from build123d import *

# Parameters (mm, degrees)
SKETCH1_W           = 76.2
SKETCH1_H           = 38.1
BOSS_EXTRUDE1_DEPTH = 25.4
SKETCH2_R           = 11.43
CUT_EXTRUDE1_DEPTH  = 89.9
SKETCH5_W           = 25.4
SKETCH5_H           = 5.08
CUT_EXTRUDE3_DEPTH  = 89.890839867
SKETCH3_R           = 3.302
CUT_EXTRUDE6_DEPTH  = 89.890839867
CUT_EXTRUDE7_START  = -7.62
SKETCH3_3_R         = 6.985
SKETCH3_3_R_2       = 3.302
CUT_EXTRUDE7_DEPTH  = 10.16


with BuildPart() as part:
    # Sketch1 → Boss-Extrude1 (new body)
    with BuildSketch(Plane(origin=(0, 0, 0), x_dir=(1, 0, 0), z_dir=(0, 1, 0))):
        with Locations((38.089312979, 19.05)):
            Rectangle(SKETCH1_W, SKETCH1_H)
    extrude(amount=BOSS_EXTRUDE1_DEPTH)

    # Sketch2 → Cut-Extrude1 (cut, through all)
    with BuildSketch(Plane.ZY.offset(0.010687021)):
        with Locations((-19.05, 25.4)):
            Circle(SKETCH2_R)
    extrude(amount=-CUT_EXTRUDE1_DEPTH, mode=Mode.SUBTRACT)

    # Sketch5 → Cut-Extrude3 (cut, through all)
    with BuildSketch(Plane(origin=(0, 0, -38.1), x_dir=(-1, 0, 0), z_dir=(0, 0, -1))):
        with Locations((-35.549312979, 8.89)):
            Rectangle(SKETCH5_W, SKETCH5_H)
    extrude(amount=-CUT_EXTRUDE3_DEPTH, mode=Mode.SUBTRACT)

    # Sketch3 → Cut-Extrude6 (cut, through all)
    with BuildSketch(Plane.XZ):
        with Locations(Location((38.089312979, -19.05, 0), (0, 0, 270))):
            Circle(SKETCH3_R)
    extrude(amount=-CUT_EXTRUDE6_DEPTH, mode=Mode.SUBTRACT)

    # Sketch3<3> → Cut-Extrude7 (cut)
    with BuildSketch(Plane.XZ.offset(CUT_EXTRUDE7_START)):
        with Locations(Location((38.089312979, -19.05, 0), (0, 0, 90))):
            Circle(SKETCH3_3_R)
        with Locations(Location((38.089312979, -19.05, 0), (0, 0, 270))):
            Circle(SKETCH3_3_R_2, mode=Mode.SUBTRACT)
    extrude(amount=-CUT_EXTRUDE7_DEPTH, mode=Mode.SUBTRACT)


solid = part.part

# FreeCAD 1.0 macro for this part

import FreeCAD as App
import Part
import Sketcher
Q = App.Units.Quantity

doc = App.newDocument("Part")
body = doc.addObject("PartDesign::Body", "Body")

sketch1 = body.newObject("Sketcher::SketchObject", "Sketch")
sketch1.AttachmentSupport = (doc.getObject("XZ_Plane"), [""])
sketch1.MapMode = "FlatFace"
sketch1.addGeometry(Part.LineSegment(App.Vector(0, -38, 0), App.Vector(0, 0, 0)), False)
sketch1.addGeometry(Part.LineSegment(App.Vector(0, 0, 0), App.Vector(76, 0, 0)), False)
sketch1.addGeometry(Part.LineSegment(App.Vector(76, 0, 0), App.Vector(76, -38, 0)), False)
sketch1.addGeometry(Part.LineSegment(App.Vector(76, -38, 0), App.Vector(0, -38, 0)), False)
sketch1.addConstraint(Sketcher.Constraint("Coincident", 0, 2, 1, 1))
sketch1.addConstraint(Sketcher.Constraint("Coincident", 1, 2, 2, 1))
sketch1.addConstraint(Sketcher.Constraint("Coincident", 2, 2, 3, 1))
sketch1.addConstraint(Sketcher.Constraint("Coincident", 3, 2, 0, 1))
sketch1.addConstraint(Sketcher.Constraint("Vertical", 0))
sketch1.addConstraint(Sketcher.Constraint("Horizontal", 1))
sketch1.addConstraint(Sketcher.Constraint("Vertical", 2))
sketch1.addConstraint(Sketcher.Constraint("Horizontal", 3))
sketch1.addConstraint(Sketcher.Constraint("PointOnObject", 0, 2, -1))
sketch1.addConstraint(Sketcher.Constraint("DistanceX", 1, 1, 1, 2, Q("3 in")))
sketch1.addConstraint(Sketcher.Constraint("DistanceY", 0, 1, 0, 2, Q("1.5 in")))
sketch1.addConstraint(Sketcher.Constraint("DistanceX", 0, 2, -1, 1, 0.010687))
pad1 = body.newObject("PartDesign::Pad", "Pad")
pad1.Profile = sketch1
pad1.Length = Q("1 in")
pad1.Reversed = True

sketch2 = body.newObject("Sketcher::SketchObject", "Sketch001")
sketch2.AttachmentSupport = (doc.getObject("YZ_Plane"), [""])
sketch2.MapMode = "FlatFace"
sketch2.AttachmentOffset = App.Placement(App.Vector(0, 0, -0.010687), App.Rotation())
sketch2.addGeometry(Part.Circle(App.Vector(25, -19, 0), App.Vector(0, 0, 1), 11), False)
sketch2.addConstraint(Sketcher.Constraint("Diameter", 0, Q("0.9 in")))
sketch2.addConstraint(Sketcher.Constraint("DistanceX", -1, 1, 0, 3, Q("1 in")))
sketch2.addConstraint(Sketcher.Constraint("DistanceY", 0, 3, -1, 1, Q("0.75 in")))
pocket1 = body.newObject("PartDesign::Pocket", "Pocket")
pocket1.Profile = sketch2
pocket1.Type = "ThroughAll"
pocket1.Reversed = True

sketch3 = body.newObject("Sketcher::SketchObject", "Sketch002")
sketch3.AttachmentSupport = (doc.getObject("XY_Plane"), [""])
sketch3.MapMode = "FlatFace"
sketch3.AttachmentOffset = App.Placement(App.Vector(0, 0, -1.5 * 25.4), App.Rotation())
sketch3.addGeometry(Part.LineSegment(App.Vector(48, 11, 0), App.Vector(48, 6, 0)), False)
sketch3.addGeometry(Part.LineSegment(App.Vector(48, 6, 0), App.Vector(23, 6, 0)), False)
sketch3.addGeometry(Part.LineSegment(App.Vector(23, 6, 0), App.Vector(23, 11, 0)), False)
sketch3.addGeometry(Part.LineSegment(App.Vector(23, 11, 0), App.Vector(48, 11, 0)), False)
sketch3.addConstraint(Sketcher.Constraint("Coincident", 0, 2, 1, 1))
sketch3.addConstraint(Sketcher.Constraint("Coincident", 1, 2, 2, 1))
sketch3.addConstraint(Sketcher.Constraint("Coincident", 2, 2, 3, 1))
sketch3.addConstraint(Sketcher.Constraint("Coincident", 3, 2, 0, 1))
sketch3.addConstraint(Sketcher.Constraint("Vertical", 0))
sketch3.addConstraint(Sketcher.Constraint("Horizontal", 1))
sketch3.addConstraint(Sketcher.Constraint("Vertical", 2))
sketch3.addConstraint(Sketcher.Constraint("Horizontal", 3))
sketch3.addConstraint(Sketcher.Constraint("DistanceX", 1, 2, 1, 1, Q("1 in")))
sketch3.addConstraint(Sketcher.Constraint("DistanceY", 0, 2, 0, 1, Q("0.2 in")))
sketch3.addConstraint(Sketcher.Constraint("DistanceY", -1, 1, 0, 2, Q("0.25 in")))
sketch3.addConstraint(Sketcher.Constraint("DistanceX", -1, 1, 0, 2, 48.249313))
pocket2 = body.newObject("PartDesign::Pocket", "Pocket001")
pocket2.Profile = sketch3
pocket2.Type = "ThroughAll"
pocket2.Reversed = True

sketch4 = body.newObject("Sketcher::SketchObject", "Sketch003")
sketch4.AttachmentSupport = (doc.getObject("XZ_Plane"), [""])
sketch4.MapMode = "FlatFace"
sketch4.addGeometry(Part.Circle(App.Vector(38.1, -19.1, 0), App.Vector(0, 0, 1), 3.3), False)
sketch4.addConstraint(Sketcher.Constraint("Diameter", 0, Q("0.26 in")))
sketch4.addConstraint(Sketcher.Constraint("DistanceY", 0, 3, -1, 1, Q("0.75 in")))
sketch4.addConstraint(Sketcher.Constraint("DistanceX", -1, 1, 0, 3, 38.089313))
pocket3 = body.newObject("PartDesign::Pocket", "Pocket002")
pocket3.Profile = sketch4
pocket3.Type = "ThroughAll"

sketch5 = body.newObject("Sketcher::SketchObject", "Sketch004")
sketch5.AttachmentSupport = (doc.getObject("XZ_Plane"), [""])
sketch5.MapMode = "FlatFace"
sketch5.AttachmentOffset = App.Placement(App.Vector(0, 0, -0.3 * 25.4), App.Rotation())
sketch5.addGeometry(Part.Circle(App.Vector(38.1, -19.1, 0), App.Vector(0, 0, 1), 7), False)
sketch5.addGeometry(Part.Circle(App.Vector(38.1, -19.1, 0), App.Vector(0, 0, 1), 3.3), False)
sketch5.addConstraint(Sketcher.Constraint("Coincident", 1, 3, 0, 3))
sketch5.addConstraint(Sketcher.Constraint("Diameter", 0, Q("0.55 in")))
sketch5.addConstraint(Sketcher.Constraint("Diameter", 1, Q("0.26 in")))
sketch5.addConstraint(Sketcher.Constraint("DistanceY", 0, 3, -1, 1, Q("0.75 in")))
sketch5.addConstraint(Sketcher.Constraint("DistanceX", -1, 1, 0, 3, 38.089313))
pocket4 = body.newObject("PartDesign::Pocket", "Pocket003")
pocket4.Profile = sketch5
pocket4.Length = Q("0.4 in")

doc.recompute()
